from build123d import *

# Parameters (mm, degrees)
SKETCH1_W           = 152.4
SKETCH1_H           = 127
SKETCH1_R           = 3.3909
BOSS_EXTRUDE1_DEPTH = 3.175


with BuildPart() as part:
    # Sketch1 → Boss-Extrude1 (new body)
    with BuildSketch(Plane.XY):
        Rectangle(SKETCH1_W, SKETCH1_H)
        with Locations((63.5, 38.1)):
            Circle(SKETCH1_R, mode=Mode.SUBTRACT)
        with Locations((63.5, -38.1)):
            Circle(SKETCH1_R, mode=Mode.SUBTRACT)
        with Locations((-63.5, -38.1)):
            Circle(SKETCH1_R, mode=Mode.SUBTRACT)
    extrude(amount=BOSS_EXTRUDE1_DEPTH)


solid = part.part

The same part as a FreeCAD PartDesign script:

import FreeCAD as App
import Part
import Sketcher
from FreeCAD import Vector
Q = App.Units.Quantity

doc = App.newDocument("Part")
params = doc.addObject("Spreadsheet::Sheet", "Params")
for row, (alias, value) in enumerate([
    ("sketch1_width", "6 in"),
    ("sketch1_height", "5 in"),
    ("sketch1_diameter", "0.267 in"),
    ("pad1_length", "0.125 in"),
], start=1):
    params.set(f"A{row}", alias)
    params.set(f"B{row}", "=" + value)
    params.setAlias(f"B{row}", alias)

body = doc.addObject("PartDesign::Body", "Body")

# Sketch on XY plane
sketch1 = body.newObject("Sketcher::SketchObject", "Sketch")
sketch1.AttachmentSupport = (doc.getObject("XY_Plane"), [""])
sketch1.MapMode = "FlatFace"
sketch1.addGeometry([
    Part.LineSegment(Vector(-76.2, 63.5, 0), Vector(-76.2, -63.5, 0)),  # 0
    Part.LineSegment(Vector(-76.2, -63.5, 0), Vector(76.2, -63.5, 0)),  # 1
    Part.LineSegment(Vector(76.2, -63.5, 0), Vector(76.2, 63.5, 0)),  # 2
    Part.LineSegment(Vector(76.2, 63.5, 0), Vector(-76.2, 63.5, 0)),  # 3
    Part.Circle(Vector(-63.5, -38.1, 0), Vector(0, 0, 1), 3.4),  # 4
    Part.Circle(Vector(63.5, -38.1, 0), Vector(0, 0, 1), 3.4),  # 5
    Part.Circle(Vector(63.5, 38.1, 0), Vector(0, 0, 1), 3.4),  # 6
], False)
sketch1.addConstraint([
    Sketcher.Constraint("Coincident", 0, 2, 1, 1),
    Sketcher.Constraint("Coincident", 1, 2, 2, 1),
    Sketcher.Constraint("Coincident", 2, 2, 3, 1),
    Sketcher.Constraint("Coincident", 3, 2, 0, 1),
    Sketcher.Constraint("Vertical", 0),
    Sketcher.Constraint("Horizontal", 1),
    Sketcher.Constraint("Vertical", 2),
    Sketcher.Constraint("Horizontal", 3),
    Sketcher.Constraint("Equal", 4, 5),
    Sketcher.Constraint("Equal", 5, 6),
    Sketcher.Constraint("Symmetric", 4, 3, 6, 3, -1, 1),
    Sketcher.Constraint("Symmetric", 0, 2, 2, 2, -1, 1),
    Sketcher.Constraint("Symmetric", 4, 3, 5, 3, -2),
    Sketcher.Constraint("DistanceX", 1, 1, 1, 2, Q("6 in")),
    Sketcher.Constraint("DistanceY", 0, 2, 0, 1, Q("5 in")),
    Sketcher.Constraint("Diameter", 4, Q("0.267 in")),
    Sketcher.Constraint("DistanceX", 4, 3, 5, 3, Q("5 in")),
    Sketcher.Constraint("DistanceY", 5, 3, 6, 3, Q("3 in")),
])
sketch1.setExpression("Constraints[13]", "Params.sketch1_width")
sketch1.setExpression("Constraints[14]", "Params.sketch1_height")
sketch1.setExpression("Constraints[15]", "Params.sketch1_diameter")
pad1 = body.newObject("PartDesign::Pad", "Pad")
pad1.Profile = sketch1
pad1.setExpression("Length", "Params.pad1_length")

doc.recompute()
